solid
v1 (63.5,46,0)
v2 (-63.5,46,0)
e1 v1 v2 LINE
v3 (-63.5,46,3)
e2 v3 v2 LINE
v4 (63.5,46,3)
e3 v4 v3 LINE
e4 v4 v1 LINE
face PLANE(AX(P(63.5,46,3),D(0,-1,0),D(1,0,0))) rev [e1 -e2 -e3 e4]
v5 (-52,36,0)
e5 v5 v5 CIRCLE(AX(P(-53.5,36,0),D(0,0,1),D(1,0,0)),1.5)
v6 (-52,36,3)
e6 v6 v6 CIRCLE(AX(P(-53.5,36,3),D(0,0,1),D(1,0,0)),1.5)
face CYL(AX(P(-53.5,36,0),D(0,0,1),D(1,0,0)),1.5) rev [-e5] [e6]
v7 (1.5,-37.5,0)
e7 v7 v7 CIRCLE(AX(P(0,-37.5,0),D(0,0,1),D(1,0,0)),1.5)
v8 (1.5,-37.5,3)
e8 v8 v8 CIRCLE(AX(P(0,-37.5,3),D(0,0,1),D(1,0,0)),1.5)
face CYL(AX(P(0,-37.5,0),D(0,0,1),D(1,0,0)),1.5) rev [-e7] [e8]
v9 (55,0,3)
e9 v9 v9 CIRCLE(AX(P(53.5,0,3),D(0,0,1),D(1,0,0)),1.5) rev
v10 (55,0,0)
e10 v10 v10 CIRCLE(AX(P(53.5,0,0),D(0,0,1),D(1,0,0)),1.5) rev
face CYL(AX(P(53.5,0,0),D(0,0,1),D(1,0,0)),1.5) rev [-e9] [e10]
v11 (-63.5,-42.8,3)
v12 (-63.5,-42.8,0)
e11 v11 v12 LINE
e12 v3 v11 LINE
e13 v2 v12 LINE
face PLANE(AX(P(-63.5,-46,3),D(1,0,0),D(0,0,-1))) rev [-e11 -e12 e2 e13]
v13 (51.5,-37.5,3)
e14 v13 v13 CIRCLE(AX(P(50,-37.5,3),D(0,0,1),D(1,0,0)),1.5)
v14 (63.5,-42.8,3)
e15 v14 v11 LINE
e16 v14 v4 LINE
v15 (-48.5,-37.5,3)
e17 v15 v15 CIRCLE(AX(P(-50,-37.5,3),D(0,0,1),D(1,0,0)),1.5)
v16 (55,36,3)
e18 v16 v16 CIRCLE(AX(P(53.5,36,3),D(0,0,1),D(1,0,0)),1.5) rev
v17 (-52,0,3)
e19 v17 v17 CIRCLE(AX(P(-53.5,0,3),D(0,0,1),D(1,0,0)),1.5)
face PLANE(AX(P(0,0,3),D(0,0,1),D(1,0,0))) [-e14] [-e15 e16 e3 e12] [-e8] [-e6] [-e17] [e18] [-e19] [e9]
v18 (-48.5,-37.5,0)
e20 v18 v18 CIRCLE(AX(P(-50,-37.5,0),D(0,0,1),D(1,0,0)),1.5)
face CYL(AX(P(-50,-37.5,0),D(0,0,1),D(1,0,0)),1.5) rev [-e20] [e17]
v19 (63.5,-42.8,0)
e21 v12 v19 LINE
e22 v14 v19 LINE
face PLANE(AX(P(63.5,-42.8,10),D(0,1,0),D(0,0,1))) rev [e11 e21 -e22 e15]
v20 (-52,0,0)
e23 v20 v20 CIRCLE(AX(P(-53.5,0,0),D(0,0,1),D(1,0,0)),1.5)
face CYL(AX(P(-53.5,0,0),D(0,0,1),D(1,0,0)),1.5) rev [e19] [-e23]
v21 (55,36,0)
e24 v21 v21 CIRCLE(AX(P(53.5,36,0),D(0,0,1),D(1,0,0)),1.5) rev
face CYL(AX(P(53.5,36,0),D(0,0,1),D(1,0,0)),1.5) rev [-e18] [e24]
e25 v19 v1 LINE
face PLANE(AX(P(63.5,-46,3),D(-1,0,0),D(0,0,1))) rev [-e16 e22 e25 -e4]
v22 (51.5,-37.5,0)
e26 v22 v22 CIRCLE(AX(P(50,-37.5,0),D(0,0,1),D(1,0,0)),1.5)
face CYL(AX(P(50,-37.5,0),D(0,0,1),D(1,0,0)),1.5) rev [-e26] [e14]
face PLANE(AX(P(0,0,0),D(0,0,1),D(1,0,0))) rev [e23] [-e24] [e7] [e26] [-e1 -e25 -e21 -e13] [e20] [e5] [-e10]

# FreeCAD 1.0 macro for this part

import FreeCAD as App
import Part
import Sketcher

V = App.Vector

doc = App.newDocument("Part")
body = doc.addObject("PartDesign::Body", "Body")

sketch1 = body.newObject("Sketcher::SketchObject", "Sketch")
sketch1.AttachmentSupport = (doc.getObject("XY_Plane"), [""])
sketch1.MapMode = "FlatFace"
sketch1.addGeometry([
    Part.LineSegment(V(-64, 46, 0), V(-64, -46, 0)),
    Part.LineSegment(V(-64, -46, 0), V(64, -46, 0)),
    Part.LineSegment(V(64, -46, 0), V(64, 46, 0)),
    Part.LineSegment(V(64, 46, 0), V(-64, 46, 0)),
], False)
sketch1.addConstraint([
    Sketcher.Constraint("Coincident", 0, 2, 1, 1),
    Sketcher.Constraint("Coincident", 1, 2, 2, 1),
    Sketcher.Constraint("Coincident", 2, 2, 3, 1),
    Sketcher.Constraint("Coincident", 3, 2, 0, 1),
    Sketcher.Constraint("Vertical", 0),
    Sketcher.Constraint("Horizontal", 1),
    Sketcher.Constraint("Vertical", 2),
    Sketcher.Constraint("Horizontal", 3),
    Sketcher.Constraint("Symmetric", 0, 2, 2, 2, -1, 1),
    Sketcher.Constraint("DistanceX", 1, 1, 1, 2, 127.0),
    Sketcher.Constraint("DistanceY", 0, 2, 0, 1, 92.0),
])
pad1 = body.newObject("PartDesign::Pad", "Pad")
pad1.Profile = sketch1
pad1.Length = 3

sketch2 = body.newObject("Sketcher::SketchObject", "Sketch001")
sketch2.AttachmentSupport = (doc.getObject("XY_Plane"), [""])
sketch2.MapMode = "FlatFace"
sketch2.AttachmentOffset = App.Placement(V(0, 0, 3), App.Rotation())
sketch2.addGeometry([
    Part.Circle(V(0, -37.5, 0), V(0, 0, 1), 1.5),
    Part.Circle(V(50, -37.5, 0), V(0, 0, 1), 1.5),
    Part.Circle(V(-50, -37.5, 0), V(0, 0, 1), 1.5),
], False)
sketch2.addConstraint([
    Sketcher.Constraint("Equal", 0, 1),
    Sketcher.Constraint("Equal", 1, 2),
    Sketcher.Constraint("Symmetric", 1, 3, 2, 3, -2),
    Sketcher.Constraint("PointOnObject", 0, 3, -2),
    Sketcher.Constraint("Horizontal", 0, 3, 1, 3),
    Sketcher.Constraint("Diameter", 0, 3.0),
    Sketcher.Constraint("DistanceX", -1, 1, 1, 3, 50.0),
    Sketcher.Constraint("DistanceY", 0, 3, -1, 1, 37.5),
])
pocket1 = body.newObject("PartDesign::Pocket", "Pocket")
pocket1.Profile = sketch2
pocket1.Type = "ThroughAll"

sketch3 = body.newObject("Sketcher::SketchObject", "Sketch002")
sketch3.AttachmentSupport = (doc.getObject("XY_Plane"), [""])
sketch3.MapMode = "FlatFace"
sketch3.AttachmentOffset = App.Placement(V(0, 0, 3), App.Rotation())
sketch3.addGeometry([
    Part.Circle(V(-53.5, 36, 0), V(0, 0, 1), 1.5),
    Part.Circle(V(53.5, 36, 0), V(0, 0, 1), 1.5),
    Part.Circle(V(-53.5, 0, 0), V(0, 0, 1), 1.5),
    Part.Circle(V(53.5, 0, 0), V(0, 0, 1), 1.5),
], False)
sketch3.addConstraint([
    Sketcher.Constraint("Equal", 0, 1),
    Sketcher.Constraint("Equal", 1, 2),
    Sketcher.Constraint("Equal", 2, 3),
    Sketcher.Constraint("Symmetric", 2, 3, 3, 3, -1, 1),
    Sketcher.Constraint("Symmetric", 0, 3, 1, 3, -2),
    Sketcher.Constraint("PointOnObject", 2, 3, -1),
    Sketcher.Constraint("Vertical", 0, 3, 2, 3),
    Sketcher.Constraint("Diameter", 0, 3.0),
    Sketcher.Constraint("DistanceY", -1, 1, 0, 3, 36.0),
    Sketcher.Constraint("DistanceX", 0, 3, 1, 3, 107.0),
])
pocket2 = body.newObject("PartDesign::Pocket", "Pocket001")
pocket2.Profile = sketch3
pocket2.Type = "ThroughAll"

sketch4 = body.newObject("Sketcher::SketchObject", "Sketch003")
sketch4.AttachmentSupport = (doc.getObject("XY_Plane"), [""])
sketch4.MapMode = "FlatFace"
sketch4.addGeometry([
    Part.LineSegment(V(63.5, -42.8, 0), V(63.5, -46, 0)),
    Part.LineSegment(V(63.5, -46, 0), V(-63.5, -46, 0)),
    Part.LineSegment(V(-63.5, -46, 0), V(-63.5, -42.8, 0)),
    Part.LineSegment(V(-63.5, -42.8, 0), V(63.5, -42.8, 0)),
], False)
sketch4.addConstraint([
    Sketcher.Constraint("Coincident", 0, 2, 1, 1),
    Sketcher.Constraint("Coincident", 1, 2, 2, 1),
    Sketcher.Constraint("Coincident", 2, 2, 3, 1),
    Sketcher.Constraint("Coincident", 3, 2, 0, 1),
    Sketcher.Constraint("Vertical", 0),
    Sketcher.Constraint("Horizontal", 1),
    Sketcher.Constraint("Vertical", 2),
    Sketcher.Constraint("Horizontal", 3),
    Sketcher.Constraint("DistanceX", 1, 2, 1, 1, 127.0),
    Sketcher.Constraint("DistanceY", 0, 2, 0, 1, 3.2),
    Sketcher.Constraint("DistanceY", 0, 2, -1, 1, 46.0),
    Sketcher.Constraint("DistanceX", -1, 1, 0, 2, 63.5),
])
pocket3 = body.newObject("PartDesign::Pocket", "Pocket002")
pocket3.Profile = sketch4
pocket3.Length = 10
pocket3.Reversed = True

doc.recompute()
